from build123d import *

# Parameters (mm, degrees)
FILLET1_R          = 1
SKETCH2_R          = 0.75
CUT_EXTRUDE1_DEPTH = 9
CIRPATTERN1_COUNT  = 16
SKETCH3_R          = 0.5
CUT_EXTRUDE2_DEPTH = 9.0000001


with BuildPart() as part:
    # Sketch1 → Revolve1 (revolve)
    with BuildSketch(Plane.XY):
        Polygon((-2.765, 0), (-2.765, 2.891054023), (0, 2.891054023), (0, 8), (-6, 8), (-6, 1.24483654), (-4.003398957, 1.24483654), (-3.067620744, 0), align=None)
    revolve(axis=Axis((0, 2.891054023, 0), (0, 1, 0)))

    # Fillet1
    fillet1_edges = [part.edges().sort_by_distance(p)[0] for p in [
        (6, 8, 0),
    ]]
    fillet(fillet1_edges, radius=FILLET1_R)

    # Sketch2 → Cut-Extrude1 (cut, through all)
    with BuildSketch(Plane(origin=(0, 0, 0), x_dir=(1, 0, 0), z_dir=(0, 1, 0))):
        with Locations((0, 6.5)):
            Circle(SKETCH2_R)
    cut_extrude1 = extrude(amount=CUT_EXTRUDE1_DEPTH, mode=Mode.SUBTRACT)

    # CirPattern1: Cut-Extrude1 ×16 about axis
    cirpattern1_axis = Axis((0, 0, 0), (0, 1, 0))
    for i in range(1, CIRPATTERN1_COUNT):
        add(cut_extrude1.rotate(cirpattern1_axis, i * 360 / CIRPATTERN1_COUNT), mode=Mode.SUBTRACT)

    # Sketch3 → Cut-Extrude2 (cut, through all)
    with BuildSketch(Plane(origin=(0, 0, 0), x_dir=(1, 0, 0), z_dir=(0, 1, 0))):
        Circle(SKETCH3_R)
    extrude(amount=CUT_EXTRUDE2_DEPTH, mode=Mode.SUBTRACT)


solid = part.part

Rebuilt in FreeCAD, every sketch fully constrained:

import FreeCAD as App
import Part
import Sketcher


def edges_at(feature, points):
    """Names of the edges that pass closest to the given points."""
    edges = feature.Shape.Edges
    near = lambda p: min(range(len(edges)), key=lambda i: edges[i].distToShape(Part.Vertex(*p))[0])
    return sorted({f"Edge{near(p) + 1}" for p in points})


def add_polygon(sketch, points):
    """Adds a closed chain of lines whose ends are joined by coincident constraints."""
    first, n = sketch.GeometryCount, len(points)
    for a, b in zip(points, points[1:] + points[:1]):
        sketch.addGeometry(Part.LineSegment(App.Vector(*a, 0), App.Vector(*b, 0)), False)
    for i in range(n):
        sketch.addConstraint(Sketcher.Constraint("Coincident", first + i, 2, first + (i + 1) % n, 1))

doc = App.newDocument("Part")
body = doc.addObject("PartDesign::Body", "Body")

sketch1 = body.newObject("Sketcher::SketchObject", "Sketch")
sketch1.AttachmentSupport = (doc.getObject("XY_Plane"), [""])
sketch1.MapMode = "FlatFace"
add_polygon(sketch1, [(-2.77, 0), (-2.77, 2.89), (0, 2.89), (0, 8), (-6, 8), (-6, 1.24), (-4, 1.24), (-3.07, 0)])
sketch1.addConstraint(Sketcher.Constraint("Vertical", 0))
sketch1.addConstraint(Sketcher.Constraint("Horizontal", 1))
sketch1.addConstraint(Sketcher.Constraint("Vertical", 2))
sketch1.addConstraint(Sketcher.Constraint("Horizontal", 3))
sketch1.addConstraint(Sketcher.Constraint("Vertical", 4))
sketch1.addConstraint(Sketcher.Constraint("Horizontal", 5))
sketch1.addConstraint(Sketcher.Constraint("Horizontal", 7))
sketch1.addConstraint(Sketcher.Constraint("PointOnObject", 1, 2, -2))
sketch1.addConstraint(Sketcher.Constraint("PointOnObject", 6, 2, -1))
sketch1.addConstraint(Sketcher.Constraint("DistanceX", 3, 2, 3, 1, 6.0))
sketch1.addConstraint(Sketcher.Constraint("DistanceY", -1, 1, 2, 2, 8.0))
sketch1.addConstraint(Sketcher.Constraint("DistanceX", 1, 1, 1, 2, 2.765))
sketch1.addConstraint(Sketcher.Constraint("DistanceX", 5, 1, 5, 2, 1.996601))
sketch1.addConstraint(Sketcher.Constraint("DistanceX", 7, 1, 7, 2, 0.302621))
sketch1.addConstraint(Sketcher.Constraint("DistanceY", 0, 1, 0, 2, 2.891054))
sketch1.addConstraint(Sketcher.Constraint("DistanceY", 4, 2, 4, 1, 6.755163))
revolution = body.newObject("PartDesign::Revolution", "Revolution")
revolution.Profile = sketch1
revolution.ReferenceAxis = (sketch1, ["V_Axis"])
revolution.Angle = 360
doc.recompute()

fillet = body.newObject("PartDesign::Fillet", "Fillet")
fillet.Base = (revolution, edges_at(revolution, [(6, 8, 0)]))
fillet.Radius = 1

sketch2 = body.newObject("Sketcher::SketchObject", "Sketch001")
sketch2.AttachmentSupport = (doc.getObject("XZ_Plane"), [""])
sketch2.MapMode = "FlatFace"
sketch2.addGeometry(Part.Circle(App.Vector(0, -6.5, 0), App.Vector(0, 0, 1), 0.8), False)
sketch2.addConstraint(Sketcher.Constraint("PointOnObject", 0, 3, -2))
sketch2.addConstraint(Sketcher.Constraint("Diameter", 0, 1.5))
sketch2.addConstraint(Sketcher.Constraint("DistanceY", 0, 3, -1, 1, 6.5))
pocket1 = body.newObject("PartDesign::Pocket", "Pocket")
pocket1.Profile = sketch2
pocket1.Type = "ThroughAll"
doc.recompute()

polarpattern = body.newObject("PartDesign::PolarPattern", "PolarPattern")
polarpattern.Originals = [pocket1]
polarpattern.Axis = (doc.getObject("Y_Axis"), [""])
polarpattern.Angle = 360
polarpattern.Occurrences = 16
body.Tip = polarpattern

sketch3 = body.newObject("Sketcher::SketchObject", "Sketch002")
sketch3.AttachmentSupport = (doc.getObject("XZ_Plane"), [""])
sketch3.MapMode = "FlatFace"
sketch3.addGeometry(Part.Circle(App.Vector(0, 0, 0), App.Vector(0, 0, 1), 0.5), False)
sketch3.addConstraint(Sketcher.Constraint("Coincident", 0, 3, -1, 1))
sketch3.addConstraint(Sketcher.Constraint("Diameter", 0, 1.0))
pocket2 = body.newObject("PartDesign::Pocket", "Pocket001")
pocket2.Profile = sketch3
pocket2.Type = "ThroughAll"

doc.recompute()
